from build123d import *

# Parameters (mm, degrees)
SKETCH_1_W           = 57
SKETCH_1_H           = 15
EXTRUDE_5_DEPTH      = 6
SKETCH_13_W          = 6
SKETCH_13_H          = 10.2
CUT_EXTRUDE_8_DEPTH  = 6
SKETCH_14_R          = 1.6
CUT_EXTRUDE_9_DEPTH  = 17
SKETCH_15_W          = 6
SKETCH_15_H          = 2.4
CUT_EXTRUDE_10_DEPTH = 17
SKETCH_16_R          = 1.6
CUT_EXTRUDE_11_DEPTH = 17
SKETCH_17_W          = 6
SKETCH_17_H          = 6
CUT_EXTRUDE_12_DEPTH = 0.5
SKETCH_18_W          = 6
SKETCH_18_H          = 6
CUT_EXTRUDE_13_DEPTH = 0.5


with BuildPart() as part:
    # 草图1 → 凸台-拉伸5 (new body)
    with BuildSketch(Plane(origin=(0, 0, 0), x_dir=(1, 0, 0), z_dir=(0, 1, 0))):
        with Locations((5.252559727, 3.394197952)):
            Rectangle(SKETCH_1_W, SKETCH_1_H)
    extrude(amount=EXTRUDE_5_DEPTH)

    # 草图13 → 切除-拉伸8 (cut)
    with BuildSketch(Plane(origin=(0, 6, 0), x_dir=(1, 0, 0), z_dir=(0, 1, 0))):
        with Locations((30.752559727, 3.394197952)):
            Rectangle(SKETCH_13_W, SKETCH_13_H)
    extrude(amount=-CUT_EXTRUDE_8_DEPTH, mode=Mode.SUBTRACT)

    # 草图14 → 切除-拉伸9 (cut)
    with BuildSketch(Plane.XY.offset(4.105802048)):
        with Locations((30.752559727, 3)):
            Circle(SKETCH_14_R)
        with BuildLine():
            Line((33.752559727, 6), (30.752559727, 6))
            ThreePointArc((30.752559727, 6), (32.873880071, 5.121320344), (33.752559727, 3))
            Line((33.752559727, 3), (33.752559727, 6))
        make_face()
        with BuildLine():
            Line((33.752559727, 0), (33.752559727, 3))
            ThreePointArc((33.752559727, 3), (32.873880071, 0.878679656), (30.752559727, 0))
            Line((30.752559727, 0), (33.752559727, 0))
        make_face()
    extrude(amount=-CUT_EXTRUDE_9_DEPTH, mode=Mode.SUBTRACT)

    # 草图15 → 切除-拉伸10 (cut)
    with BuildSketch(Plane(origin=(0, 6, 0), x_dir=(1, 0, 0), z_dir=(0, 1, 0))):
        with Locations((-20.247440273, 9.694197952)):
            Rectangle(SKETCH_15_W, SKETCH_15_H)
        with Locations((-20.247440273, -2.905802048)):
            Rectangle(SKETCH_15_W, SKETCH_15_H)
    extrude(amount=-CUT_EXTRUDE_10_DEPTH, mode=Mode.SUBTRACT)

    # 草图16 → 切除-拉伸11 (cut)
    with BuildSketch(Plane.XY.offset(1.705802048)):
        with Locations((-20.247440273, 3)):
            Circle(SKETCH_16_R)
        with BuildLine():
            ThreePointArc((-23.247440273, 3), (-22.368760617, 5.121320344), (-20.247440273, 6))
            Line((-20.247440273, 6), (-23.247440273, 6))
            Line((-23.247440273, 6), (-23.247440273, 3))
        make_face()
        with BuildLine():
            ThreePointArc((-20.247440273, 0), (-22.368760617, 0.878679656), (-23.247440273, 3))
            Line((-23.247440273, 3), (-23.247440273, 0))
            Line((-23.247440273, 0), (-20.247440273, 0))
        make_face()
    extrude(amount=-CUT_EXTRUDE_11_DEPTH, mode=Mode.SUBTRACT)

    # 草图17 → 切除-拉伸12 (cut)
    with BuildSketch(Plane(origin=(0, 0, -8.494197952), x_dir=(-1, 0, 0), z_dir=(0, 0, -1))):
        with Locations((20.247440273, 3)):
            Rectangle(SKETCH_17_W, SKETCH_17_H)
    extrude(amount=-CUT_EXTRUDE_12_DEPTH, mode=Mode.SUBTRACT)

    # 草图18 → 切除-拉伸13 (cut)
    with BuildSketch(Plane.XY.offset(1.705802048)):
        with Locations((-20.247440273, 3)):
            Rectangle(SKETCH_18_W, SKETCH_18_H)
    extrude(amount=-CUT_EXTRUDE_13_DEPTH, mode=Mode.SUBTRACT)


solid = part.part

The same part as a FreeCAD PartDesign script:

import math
import FreeCAD as App
import Part
import Sketcher

V = App.Vector


def add_polygon(sketch, points):
    """Adds a closed chain of lines whose ends are joined by coincident constraints."""
    first, n = sketch.GeometryCount, len(points)
    for a, b in zip(points, points[1:] + points[:1]):
        sketch.addGeometry(Part.LineSegment(App.Vector(*a, 0), App.Vector(*b, 0)), False)
    for i in range(n):
        sketch.addConstraint(Sketcher.Constraint("Coincident", first + i, 2, first + (i + 1) % n, 1))

doc = App.newDocument("Part")
body = doc.addObject("PartDesign::Body", "Body")

sketch1 = body.newObject("Sketcher::SketchObject", "Sketch")
sketch1.AttachmentSupport = (doc.getObject("XZ_Plane"), [""])
sketch1.MapMode = "FlatFace"
add_polygon(sketch1, [(-23, -11), (-23, 4), (34, 4), (34, -11)])
sketch1.addConstraint(Sketcher.Constraint("Vertical", 0))
sketch1.addConstraint(Sketcher.Constraint("Horizontal", 1))
sketch1.addConstraint(Sketcher.Constraint("Vertical", 2))
sketch1.addConstraint(Sketcher.Constraint("Horizontal", 3))
sketch1.addConstraint(Sketcher.Constraint("DistanceX", 1, 1, 1, 2, 57.0))
sketch1.addConstraint(Sketcher.Constraint("DistanceY", 0, 1, 0, 2, 15.0))
sketch1.addConstraint(Sketcher.Constraint("DistanceX", 0, 2, -1, 1, 23.24744))
sketch1.addConstraint(Sketcher.Constraint("DistanceY", -1, 1, 0, 2, 4.105802))
pad1 = body.newObject("PartDesign::Pad", "Pad")
pad1.Profile = sketch1
pad1.Length = 6
pad1.Reversed = True

sketch2 = body.newObject("Sketcher::SketchObject", "Sketch001")
sketch2.AttachmentSupport = (doc.getObject("XZ_Plane"), [""])
sketch2.MapMode = "FlatFace"
sketch2.AttachmentOffset = App.Placement(V(0, 0, -6), App.Rotation())
add_polygon(sketch2, [(28, -8), (28, 2), (34, 2), (34, -8)])
sketch2.addConstraint(Sketcher.Constraint("Vertical", 0))
sketch2.addConstraint(Sketcher.Constraint("Horizontal", 1))
sketch2.addConstraint(Sketcher.Constraint("Vertical", 2))
sketch2.addConstraint(Sketcher.Constraint("Horizontal", 3))
sketch2.addConstraint(Sketcher.Constraint("DistanceX", 1, 1, 1, 2, 6.0))
sketch2.addConstraint(Sketcher.Constraint("DistanceY", 0, 1, 0, 2, 10.2))
sketch2.addConstraint(Sketcher.Constraint("DistanceX", -1, 1, 0, 2, 27.75256))
sketch2.addConstraint(Sketcher.Constraint("DistanceY", -1, 1, 0, 2, 1.705802))
pocket1 = body.newObject("PartDesign::Pocket", "Pocket")
pocket1.Profile = sketch2
pocket1.Length = 6
pocket1.Reversed = True

sketch3 = body.newObject("Sketcher::SketchObject", "Sketch002")
sketch3.AttachmentSupport = (doc.getObject("XY_Plane"), [""])
sketch3.MapMode = "FlatFace"
sketch3.AttachmentOffset = App.Placement(V(0, 0, 4.105802), App.Rotation())
sketch3.addGeometry(Part.Circle(V(30.8, 3, 0), V(0, 0, 1), 1.6), False)
sketch3.addGeometry(Part.LineSegment(V(33.8, 6, 0), V(30.8, 6, 0)), False)
sketch3.addGeometry(Part.ArcOfCircle(Part.Circle(V(30.8, 3, 0), V(0, 0, 1), 3), math.radians(0), math.radians(90)), False)
sketch3.addGeometry(Part.LineSegment(V(33.8, 3, 0), V(33.8, 6, 0)), False)
sketch3.addGeometry(Part.LineSegment(V(33.8, 0, 0), V(33.8, 3, 0)), False)
sketch3.addGeometry(Part.ArcOfCircle(Part.Circle(V(30.8, 3, 0), V(0, 0, 1), 3), math.radians(-90), math.radians(0)), False)
sketch3.addGeometry(Part.LineSegment(V(30.8, 0, 0), V(33.8, 0, 0)), False)
sketch3.addConstraint(Sketcher.Constraint("Tangent", 1, 2, 2, 2))
sketch3.addConstraint(Sketcher.Constraint("Tangent", 2, 1, 3, 1))
sketch3.addConstraint(Sketcher.Constraint("Coincident", 3, 2, 1, 1))
sketch3.addConstraint(Sketcher.Constraint("Tangent", 4, 2, 5, 2))
sketch3.addConstraint(Sketcher.Constraint("Tangent", 5, 1, 6, 1))
sketch3.addConstraint(Sketcher.Constraint("Coincident", 6, 2, 4, 1))
sketch3.addConstraint(Sketcher.Constraint("Horizontal", 1))
sketch3.addConstraint(Sketcher.Constraint("Vertical", 3))
sketch3.addConstraint(Sketcher.Constraint("Vertical", 4))
sketch3.addConstraint(Sketcher.Constraint("Horizontal", 6))
sketch3.addConstraint(Sketcher.Constraint("Coincident", 2, 3, 0, 3))
sketch3.addConstraint(Sketcher.Constraint("Coincident", 5, 3, 0, 3))
sketch3.addConstraint(Sketcher.Constraint("Equal", 2, 5))
sketch3.addConstraint(Sketcher.Constraint("PointOnObject", 5, 1, -1))
sketch3.addConstraint(Sketcher.Constraint("Radius", 2, 3.0))
sketch3.addConstraint(Sketcher.Constraint("Diameter", 0, 3.2))
sketch3.addConstraint(Sketcher.Constraint("DistanceX", -1, 1, 0, 3, 30.75256))
pocket2 = body.newObject("PartDesign::Pocket", "Pocket001")
pocket2.Profile = sketch3
pocket2.Length = 17

sketch4 = body.newObject("Sketcher::SketchObject", "Sketch003")
sketch4.AttachmentSupport = (doc.getObject("XZ_Plane"), [""])
sketch4.MapMode = "FlatFace"
sketch4.AttachmentOffset = App.Placement(V(0, 0, -6), App.Rotation())
add_polygon(sketch4, [(-23.2, -10.9), (-23.2, -8.5), (-17.2, -8.5), (-17.2, -10.9)])
add_polygon(sketch4, [(-23.2, 1.7), (-23.2, 4.1), (-17.2, 4.1), (-17.2, 1.7)])
sketch4.addConstraint(Sketcher.Constraint("Vertical", 0))
sketch4.addConstraint(Sketcher.Constraint("Horizontal", 1))
sketch4.addConstraint(Sketcher.Constraint("Vertical", 2))
sketch4.addConstraint(Sketcher.Constraint("Horizontal", 3))
sketch4.addConstraint(Sketcher.Constraint("Vertical", 4))
sketch4.addConstraint(Sketcher.Constraint("Horizontal", 5))
sketch4.addConstraint(Sketcher.Constraint("Vertical", 6))
sketch4.addConstraint(Sketcher.Constraint("Horizontal", 7))
sketch4.addConstraint(Sketcher.Constraint("Vertical", 3, 2, 4, 2))
sketch4.addConstraint(Sketcher.Constraint("Vertical", 2, 2, 5, 2))
sketch4.addConstraint(Sketcher.Constraint("Equal", 2, 4))
sketch4.addConstraint(Sketcher.Constraint("DistanceX", 1, 1, 1, 2, 6.0))
sketch4.addConstraint(Sketcher.Constraint("DistanceY", 0, 1, 0, 2, 2.4))
sketch4.addConstraint(Sketcher.Constraint("DistanceY", 3, 2, 4, 2, 15.0))
sketch4.addConstraint(Sketcher.Constraint("DistanceX", 0, 2, -1, 1, 23.24744))
sketch4.addConstraint(Sketcher.Constraint("DistanceY", 0, 2, -1, 1, 8.494198))
pocket3 = body.newObject("PartDesign::Pocket", "Pocket002")
pocket3.Profile = sketch4
pocket3.Length = 17
pocket3.Reversed = True

sketch5 = body.newObject("Sketcher::SketchObject", "Sketch004")
sketch5.AttachmentSupport = (doc.getObject("XY_Plane"), [""])
sketch5.MapMode = "FlatFace"
sketch5.AttachmentOffset = App.Placement(V(0, 0, 1.705802), App.Rotation())
sketch5.addGeometry(Part.Circle(V(-20.2, 3, 0), V(0, 0, 1), 1.6), False)
sketch5.addGeometry(Part.ArcOfCircle(Part.Circle(V(-20.2, 3, 0), V(0, 0, 1), 3), math.radians(90), math.radians(180)), False)
sketch5.addGeometry(Part.LineSegment(V(-20.2, 6, 0), V(-23.2, 6, 0)), False)
sketch5.addGeometry(Part.LineSegment(V(-23.2, 6, 0), V(-23.2, 3, 0)), False)
sketch5.addGeometry(Part.ArcOfCircle(Part.Circle(V(-20.2, 3, 0), V(0, 0, 1), 3), math.radians(180), math.radians(270)), False)
sketch5.addGeometry(Part.LineSegment(V(-23.2, 3, 0), V(-23.2, 0, 0)), False)
sketch5.addGeometry(Part.LineSegment(V(-23.2, 0, 0), V(-20.2, 0, 0)), False)
sketch5.addConstraint(Sketcher.Constraint("Tangent", 1, 1, 2, 1))
sketch5.addConstraint(Sketcher.Constraint("Coincident", 2, 2, 3, 1))
sketch5.addConstraint(Sketcher.Constraint("Tangent", 3, 2, 1, 2))
sketch5.addConstraint(Sketcher.Constraint("Tangent", 4, 1, 5, 1))
sketch5.addConstraint(Sketcher.Constraint("Coincident", 5, 2, 6, 1))
sketch5.addConstraint(Sketcher.Constraint("Tangent", 6, 2, 4, 2))
sketch5.addConstraint(Sketcher.Constraint("Horizontal", 2))
sketch5.addConstraint(Sketcher.Constraint("Vertical", 3))
sketch5.addConstraint(Sketcher.Constraint("Vertical", 5))
sketch5.addConstraint(Sketcher.Constraint("Horizontal", 6))
sketch5.addConstraint(Sketcher.Constraint("Coincident", 1, 3, 0, 3))
sketch5.addConstraint(Sketcher.Constraint("Coincident", 4, 3, 0, 3))
sketch5.addConstraint(Sketcher.Constraint("Equal", 1, 4))
sketch5.addConstraint(Sketcher.Constraint("PointOnObject", 5, 2, -1))
sketch5.addConstraint(Sketcher.Constraint("Radius", 1, 3.0))
sketch5.addConstraint(Sketcher.Constraint("Diameter", 0, 3.2))
sketch5.addConstraint(Sketcher.Constraint("DistanceX", 0, 3, -1, 1, 20.24744))
pocket4 = body.newObject("PartDesign::Pocket", "Pocket003")
pocket4.Profile = sketch5
pocket4.Length = 17

sketch6 = body.newObject("Sketcher::SketchObject", "Sketch005")
sketch6.AttachmentSupport = (doc.getObject("XY_Plane"), [""])
sketch6.MapMode = "FlatFace"
sketch6.AttachmentOffset = App.Placement(V(0, 0, -8.494198), App.Rotation())
add_polygon(sketch6, [(-17, 6), (-17, 0), (-23, 0), (-23, 6)])
sketch6.addConstraint(Sketcher.Constraint("Vertical", 0))
sketch6.addConstraint(Sketcher.Constraint("Horizontal", 1))
sketch6.addConstraint(Sketcher.Constraint("Vertical", 2))
sketch6.addConstraint(Sketcher.Constraint("Horizontal", 3))
sketch6.addConstraint(Sketcher.Constraint("PointOnObject", 0, 2, -1))
sketch6.addConstraint(Sketcher.Constraint("Equal", 3, 0))
sketch6.addConstraint(Sketcher.Constraint("DistanceX", 1, 2, 1, 1, 6.0))
sketch6.addConstraint(Sketcher.Constraint("DistanceX", 0, 2, -1, 1, 17.24744))
pocket5 = body.newObject("PartDesign::Pocket", "Pocket004")
pocket5.Profile = sketch6
pocket5.Length = 0.5
pocket5.Reversed = True

sketch7 = body.newObject("Sketcher::SketchObject", "Sketch006")
sketch7.AttachmentSupport = (doc.getObject("XY_Plane"), [""])
sketch7.MapMode = "FlatFace"
sketch7.AttachmentOffset = App.Placement(V(0, 0, 1.705802), App.Rotation())
add_polygon(sketch7, [(-23, 6), (-23, 0), (-17, 0), (-17, 6)])
sketch7.addConstraint(Sketcher.Constraint("Vertical", 0))
sketch7.addConstraint(Sketcher.Constraint("Horizontal", 1))
sketch7.addConstraint(Sketcher.Constraint("Vertical", 2))
sketch7.addConstraint(Sketcher.Constraint("Horizontal", 3))
sketch7.addConstraint(Sketcher.Constraint("PointOnObject", 0, 2, -1))
sketch7.addConstraint(Sketcher.Constraint("Equal", 3, 0))
sketch7.addConstraint(Sketcher.Constraint("DistanceX", 1, 1, 1, 2, 6.0))
sketch7.addConstraint(Sketcher.Constraint("DistanceX", 0, 2, -1, 1, 23.24744))
pocket6 = body.newObject("PartDesign::Pocket", "Pocket005")
pocket6.Profile = sketch7
pocket6.Length = 0.5

doc.recompute()
